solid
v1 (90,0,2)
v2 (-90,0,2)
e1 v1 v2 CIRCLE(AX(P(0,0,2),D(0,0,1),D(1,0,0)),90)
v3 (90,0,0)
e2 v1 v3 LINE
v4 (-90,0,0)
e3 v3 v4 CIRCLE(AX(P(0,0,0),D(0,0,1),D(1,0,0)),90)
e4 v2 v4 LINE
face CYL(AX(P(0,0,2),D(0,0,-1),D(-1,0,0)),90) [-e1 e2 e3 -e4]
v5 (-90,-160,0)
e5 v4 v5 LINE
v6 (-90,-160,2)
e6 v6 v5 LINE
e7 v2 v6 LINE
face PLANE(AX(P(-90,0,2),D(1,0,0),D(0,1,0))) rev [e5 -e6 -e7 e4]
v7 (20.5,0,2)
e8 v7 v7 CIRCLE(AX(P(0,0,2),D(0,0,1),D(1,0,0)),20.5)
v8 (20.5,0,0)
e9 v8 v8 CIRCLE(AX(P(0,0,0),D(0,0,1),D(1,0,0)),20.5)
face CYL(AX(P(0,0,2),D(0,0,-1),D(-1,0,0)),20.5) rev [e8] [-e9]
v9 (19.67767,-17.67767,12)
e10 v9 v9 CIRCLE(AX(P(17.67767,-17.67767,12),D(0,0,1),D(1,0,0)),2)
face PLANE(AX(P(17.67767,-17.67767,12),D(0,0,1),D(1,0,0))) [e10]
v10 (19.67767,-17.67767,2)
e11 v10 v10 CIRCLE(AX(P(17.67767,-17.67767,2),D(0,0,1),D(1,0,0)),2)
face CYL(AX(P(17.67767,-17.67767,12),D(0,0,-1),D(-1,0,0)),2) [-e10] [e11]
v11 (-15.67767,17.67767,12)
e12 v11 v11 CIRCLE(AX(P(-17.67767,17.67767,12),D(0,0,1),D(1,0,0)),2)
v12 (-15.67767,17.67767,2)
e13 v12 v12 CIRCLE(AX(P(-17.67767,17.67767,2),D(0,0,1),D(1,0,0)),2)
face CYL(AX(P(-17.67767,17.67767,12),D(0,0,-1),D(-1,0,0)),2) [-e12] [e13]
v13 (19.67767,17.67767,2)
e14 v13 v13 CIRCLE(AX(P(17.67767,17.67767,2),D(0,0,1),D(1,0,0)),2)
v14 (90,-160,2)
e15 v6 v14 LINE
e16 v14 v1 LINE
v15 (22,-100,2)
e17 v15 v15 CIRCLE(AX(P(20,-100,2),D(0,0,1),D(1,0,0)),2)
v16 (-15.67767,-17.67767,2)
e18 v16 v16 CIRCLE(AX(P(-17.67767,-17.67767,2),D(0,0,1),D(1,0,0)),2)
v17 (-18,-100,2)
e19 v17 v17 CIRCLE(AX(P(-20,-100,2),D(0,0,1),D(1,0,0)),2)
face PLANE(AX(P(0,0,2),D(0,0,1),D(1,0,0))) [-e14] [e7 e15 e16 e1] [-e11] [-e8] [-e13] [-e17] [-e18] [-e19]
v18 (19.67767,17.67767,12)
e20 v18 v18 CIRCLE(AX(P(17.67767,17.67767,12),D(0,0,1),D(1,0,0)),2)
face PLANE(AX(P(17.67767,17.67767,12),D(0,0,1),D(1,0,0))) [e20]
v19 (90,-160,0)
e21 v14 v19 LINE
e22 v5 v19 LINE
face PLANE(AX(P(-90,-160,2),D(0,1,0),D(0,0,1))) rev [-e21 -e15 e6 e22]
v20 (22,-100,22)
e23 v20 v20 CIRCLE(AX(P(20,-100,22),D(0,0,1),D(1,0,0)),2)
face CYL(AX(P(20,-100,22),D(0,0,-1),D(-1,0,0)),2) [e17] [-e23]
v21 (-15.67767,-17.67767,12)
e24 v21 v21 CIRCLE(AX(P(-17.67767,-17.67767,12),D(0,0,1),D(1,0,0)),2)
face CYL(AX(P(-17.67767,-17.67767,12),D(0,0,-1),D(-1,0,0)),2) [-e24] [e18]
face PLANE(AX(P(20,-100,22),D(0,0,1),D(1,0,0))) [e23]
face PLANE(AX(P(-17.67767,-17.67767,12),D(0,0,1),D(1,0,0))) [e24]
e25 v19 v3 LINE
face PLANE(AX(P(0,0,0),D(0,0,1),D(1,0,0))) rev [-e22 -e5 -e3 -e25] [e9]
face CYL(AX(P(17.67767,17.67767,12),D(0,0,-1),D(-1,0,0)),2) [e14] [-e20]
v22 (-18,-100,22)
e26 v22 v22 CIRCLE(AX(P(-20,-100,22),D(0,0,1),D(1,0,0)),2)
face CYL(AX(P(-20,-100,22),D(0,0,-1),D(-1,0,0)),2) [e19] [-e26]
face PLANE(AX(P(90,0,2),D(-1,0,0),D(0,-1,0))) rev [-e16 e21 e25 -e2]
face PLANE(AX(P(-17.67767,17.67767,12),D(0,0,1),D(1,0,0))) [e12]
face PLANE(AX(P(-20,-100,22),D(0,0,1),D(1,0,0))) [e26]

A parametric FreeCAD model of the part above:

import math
import FreeCAD as App
import Part
import Sketcher

V = App.Vector
Q = App.Units.Quantity

doc = App.newDocument("Part")
body = doc.addObject("PartDesign::Body", "Body")

# Sketch on XY plane
sketch1 = body.newObject("Sketcher::SketchObject", "Sketch")
sketch1.AttachmentSupport = (doc.getObject("XY_Plane"), [""])
sketch1.MapMode = "FlatFace"
sketch1.addGeometry([
    Part.LineSegment(V(-90, -160, 0), V(90, -160, 0)),  # 0
    Part.LineSegment(V(90, -160, 0), V(90, 0, 0)),  # 1
    Part.ArcOfCircle(Part.Circle(V(0, 0, 0), V(0, 0, 1), 90), math.radians(0), math.radians(180)),  # 2
    Part.LineSegment(V(-90, 0, 0), V(-90, -160, 0)),  # 3
    Part.Circle(V(0, 0, 0), V(0, 0, 1), 20),  # 4
], False)
sketch1.addConstraint([
    Sketcher.Constraint("Coincident", 0, 2, 1, 1),
    Sketcher.Constraint("Tangent", 1, 2, 2, 1),
    Sketcher.Constraint("Tangent", 2, 2, 3, 1),
    Sketcher.Constraint("Coincident", 3, 2, 0, 1),
    Sketcher.Constraint("Horizontal", 0),
    Sketcher.Constraint("Vertical", 1),
    Sketcher.Constraint("Vertical", 3),
    Sketcher.Constraint("Coincident", 2, 3, -1, 1),
    Sketcher.Constraint("Coincident", 4, 3, -1, 1),
    Sketcher.Constraint("Diameter", 4, Q("41 mm")),
    Sketcher.Constraint("Radius", 2, Q("90 mm")),
    Sketcher.Constraint("DistanceY", 1, 1, 1, 2, Q("160 mm")),
])
pad1 = body.newObject("PartDesign::Pad", "Pad")
pad1.Profile = sketch1
pad1.Length = 2

# Sketch on XY plane
sketch2 = body.newObject("Sketcher::SketchObject", "Sketch001")
sketch2.AttachmentSupport = (doc.getObject("XY_Plane"), [""])
sketch2.MapMode = "FlatFace"
sketch2.AttachmentOffset = App.Placement(V(0, 0, 2), App.Rotation())
sketch2.addGeometry([
    Part.Circle(V(-17.7, 17.7, 0), V(0, 0, 1), 2),
    Part.Circle(V(17.7, 17.7, 0), V(0, 0, 1), 2),
    Part.Circle(V(17.7, -17.7, 0), V(0, 0, 1), 2),
    Part.Circle(V(-17.7, -17.7, 0), V(0, 0, 1), 2),
], False)
sketch2.addConstraint([
    Sketcher.Constraint("Equal", 0, 1),
    Sketcher.Constraint("Equal", 1, 2),
    Sketcher.Constraint("Equal", 2, 3),
    Sketcher.Constraint("Symmetric", 0, 3, 2, 3, -1, 1),
    Sketcher.Constraint("Symmetric", 1, 3, 3, 3, -1, 1),
    Sketcher.Constraint("Symmetric", 0, 3, 1, 3, -2),
    Sketcher.Constraint("Diameter", 0, Q("4 mm")),
    Sketcher.Constraint("DistanceX", 0, 3, -1, 1, Q("17.67767 mm")),
    Sketcher.Constraint("DistanceY", -1, 1, 0, 3, Q("17.67767 mm")),
])
pad2 = body.newObject("PartDesign::Pad", "Pad001")
pad2.Profile = sketch2
pad2.Length = 10

# Sketch on XY plane
sketch3 = body.newObject("Sketcher::SketchObject", "Sketch002")
sketch3.AttachmentSupport = (doc.getObject("XY_Plane"), [""])
sketch3.MapMode = "FlatFace"
sketch3.AttachmentOffset = App.Placement(V(0, 0, 2), App.Rotation())
sketch3.addGeometry([
    Part.Circle(V(-20, -100, 0), V(0, 0, 1), 2),
    Part.Circle(V(20, -100, 0), V(0, 0, 1), 2),
], False)
sketch3.addConstraint([
    Sketcher.Constraint("Equal", 0, 1),
    Sketcher.Constraint("Symmetric", 0, 3, 1, 3, -2),
    Sketcher.Constraint("Diameter", 0, Q("4 mm")),
    Sketcher.Constraint("DistanceX", 0, 3, -1, 1, Q("20 mm")),
    Sketcher.Constraint("DistanceY", 0, 3, -1, 1, Q("100 mm")),
])
pad3 = body.newObject("PartDesign::Pad", "Pad002")
pad3.Profile = sketch3
pad3.Length = 20

doc.recompute()
